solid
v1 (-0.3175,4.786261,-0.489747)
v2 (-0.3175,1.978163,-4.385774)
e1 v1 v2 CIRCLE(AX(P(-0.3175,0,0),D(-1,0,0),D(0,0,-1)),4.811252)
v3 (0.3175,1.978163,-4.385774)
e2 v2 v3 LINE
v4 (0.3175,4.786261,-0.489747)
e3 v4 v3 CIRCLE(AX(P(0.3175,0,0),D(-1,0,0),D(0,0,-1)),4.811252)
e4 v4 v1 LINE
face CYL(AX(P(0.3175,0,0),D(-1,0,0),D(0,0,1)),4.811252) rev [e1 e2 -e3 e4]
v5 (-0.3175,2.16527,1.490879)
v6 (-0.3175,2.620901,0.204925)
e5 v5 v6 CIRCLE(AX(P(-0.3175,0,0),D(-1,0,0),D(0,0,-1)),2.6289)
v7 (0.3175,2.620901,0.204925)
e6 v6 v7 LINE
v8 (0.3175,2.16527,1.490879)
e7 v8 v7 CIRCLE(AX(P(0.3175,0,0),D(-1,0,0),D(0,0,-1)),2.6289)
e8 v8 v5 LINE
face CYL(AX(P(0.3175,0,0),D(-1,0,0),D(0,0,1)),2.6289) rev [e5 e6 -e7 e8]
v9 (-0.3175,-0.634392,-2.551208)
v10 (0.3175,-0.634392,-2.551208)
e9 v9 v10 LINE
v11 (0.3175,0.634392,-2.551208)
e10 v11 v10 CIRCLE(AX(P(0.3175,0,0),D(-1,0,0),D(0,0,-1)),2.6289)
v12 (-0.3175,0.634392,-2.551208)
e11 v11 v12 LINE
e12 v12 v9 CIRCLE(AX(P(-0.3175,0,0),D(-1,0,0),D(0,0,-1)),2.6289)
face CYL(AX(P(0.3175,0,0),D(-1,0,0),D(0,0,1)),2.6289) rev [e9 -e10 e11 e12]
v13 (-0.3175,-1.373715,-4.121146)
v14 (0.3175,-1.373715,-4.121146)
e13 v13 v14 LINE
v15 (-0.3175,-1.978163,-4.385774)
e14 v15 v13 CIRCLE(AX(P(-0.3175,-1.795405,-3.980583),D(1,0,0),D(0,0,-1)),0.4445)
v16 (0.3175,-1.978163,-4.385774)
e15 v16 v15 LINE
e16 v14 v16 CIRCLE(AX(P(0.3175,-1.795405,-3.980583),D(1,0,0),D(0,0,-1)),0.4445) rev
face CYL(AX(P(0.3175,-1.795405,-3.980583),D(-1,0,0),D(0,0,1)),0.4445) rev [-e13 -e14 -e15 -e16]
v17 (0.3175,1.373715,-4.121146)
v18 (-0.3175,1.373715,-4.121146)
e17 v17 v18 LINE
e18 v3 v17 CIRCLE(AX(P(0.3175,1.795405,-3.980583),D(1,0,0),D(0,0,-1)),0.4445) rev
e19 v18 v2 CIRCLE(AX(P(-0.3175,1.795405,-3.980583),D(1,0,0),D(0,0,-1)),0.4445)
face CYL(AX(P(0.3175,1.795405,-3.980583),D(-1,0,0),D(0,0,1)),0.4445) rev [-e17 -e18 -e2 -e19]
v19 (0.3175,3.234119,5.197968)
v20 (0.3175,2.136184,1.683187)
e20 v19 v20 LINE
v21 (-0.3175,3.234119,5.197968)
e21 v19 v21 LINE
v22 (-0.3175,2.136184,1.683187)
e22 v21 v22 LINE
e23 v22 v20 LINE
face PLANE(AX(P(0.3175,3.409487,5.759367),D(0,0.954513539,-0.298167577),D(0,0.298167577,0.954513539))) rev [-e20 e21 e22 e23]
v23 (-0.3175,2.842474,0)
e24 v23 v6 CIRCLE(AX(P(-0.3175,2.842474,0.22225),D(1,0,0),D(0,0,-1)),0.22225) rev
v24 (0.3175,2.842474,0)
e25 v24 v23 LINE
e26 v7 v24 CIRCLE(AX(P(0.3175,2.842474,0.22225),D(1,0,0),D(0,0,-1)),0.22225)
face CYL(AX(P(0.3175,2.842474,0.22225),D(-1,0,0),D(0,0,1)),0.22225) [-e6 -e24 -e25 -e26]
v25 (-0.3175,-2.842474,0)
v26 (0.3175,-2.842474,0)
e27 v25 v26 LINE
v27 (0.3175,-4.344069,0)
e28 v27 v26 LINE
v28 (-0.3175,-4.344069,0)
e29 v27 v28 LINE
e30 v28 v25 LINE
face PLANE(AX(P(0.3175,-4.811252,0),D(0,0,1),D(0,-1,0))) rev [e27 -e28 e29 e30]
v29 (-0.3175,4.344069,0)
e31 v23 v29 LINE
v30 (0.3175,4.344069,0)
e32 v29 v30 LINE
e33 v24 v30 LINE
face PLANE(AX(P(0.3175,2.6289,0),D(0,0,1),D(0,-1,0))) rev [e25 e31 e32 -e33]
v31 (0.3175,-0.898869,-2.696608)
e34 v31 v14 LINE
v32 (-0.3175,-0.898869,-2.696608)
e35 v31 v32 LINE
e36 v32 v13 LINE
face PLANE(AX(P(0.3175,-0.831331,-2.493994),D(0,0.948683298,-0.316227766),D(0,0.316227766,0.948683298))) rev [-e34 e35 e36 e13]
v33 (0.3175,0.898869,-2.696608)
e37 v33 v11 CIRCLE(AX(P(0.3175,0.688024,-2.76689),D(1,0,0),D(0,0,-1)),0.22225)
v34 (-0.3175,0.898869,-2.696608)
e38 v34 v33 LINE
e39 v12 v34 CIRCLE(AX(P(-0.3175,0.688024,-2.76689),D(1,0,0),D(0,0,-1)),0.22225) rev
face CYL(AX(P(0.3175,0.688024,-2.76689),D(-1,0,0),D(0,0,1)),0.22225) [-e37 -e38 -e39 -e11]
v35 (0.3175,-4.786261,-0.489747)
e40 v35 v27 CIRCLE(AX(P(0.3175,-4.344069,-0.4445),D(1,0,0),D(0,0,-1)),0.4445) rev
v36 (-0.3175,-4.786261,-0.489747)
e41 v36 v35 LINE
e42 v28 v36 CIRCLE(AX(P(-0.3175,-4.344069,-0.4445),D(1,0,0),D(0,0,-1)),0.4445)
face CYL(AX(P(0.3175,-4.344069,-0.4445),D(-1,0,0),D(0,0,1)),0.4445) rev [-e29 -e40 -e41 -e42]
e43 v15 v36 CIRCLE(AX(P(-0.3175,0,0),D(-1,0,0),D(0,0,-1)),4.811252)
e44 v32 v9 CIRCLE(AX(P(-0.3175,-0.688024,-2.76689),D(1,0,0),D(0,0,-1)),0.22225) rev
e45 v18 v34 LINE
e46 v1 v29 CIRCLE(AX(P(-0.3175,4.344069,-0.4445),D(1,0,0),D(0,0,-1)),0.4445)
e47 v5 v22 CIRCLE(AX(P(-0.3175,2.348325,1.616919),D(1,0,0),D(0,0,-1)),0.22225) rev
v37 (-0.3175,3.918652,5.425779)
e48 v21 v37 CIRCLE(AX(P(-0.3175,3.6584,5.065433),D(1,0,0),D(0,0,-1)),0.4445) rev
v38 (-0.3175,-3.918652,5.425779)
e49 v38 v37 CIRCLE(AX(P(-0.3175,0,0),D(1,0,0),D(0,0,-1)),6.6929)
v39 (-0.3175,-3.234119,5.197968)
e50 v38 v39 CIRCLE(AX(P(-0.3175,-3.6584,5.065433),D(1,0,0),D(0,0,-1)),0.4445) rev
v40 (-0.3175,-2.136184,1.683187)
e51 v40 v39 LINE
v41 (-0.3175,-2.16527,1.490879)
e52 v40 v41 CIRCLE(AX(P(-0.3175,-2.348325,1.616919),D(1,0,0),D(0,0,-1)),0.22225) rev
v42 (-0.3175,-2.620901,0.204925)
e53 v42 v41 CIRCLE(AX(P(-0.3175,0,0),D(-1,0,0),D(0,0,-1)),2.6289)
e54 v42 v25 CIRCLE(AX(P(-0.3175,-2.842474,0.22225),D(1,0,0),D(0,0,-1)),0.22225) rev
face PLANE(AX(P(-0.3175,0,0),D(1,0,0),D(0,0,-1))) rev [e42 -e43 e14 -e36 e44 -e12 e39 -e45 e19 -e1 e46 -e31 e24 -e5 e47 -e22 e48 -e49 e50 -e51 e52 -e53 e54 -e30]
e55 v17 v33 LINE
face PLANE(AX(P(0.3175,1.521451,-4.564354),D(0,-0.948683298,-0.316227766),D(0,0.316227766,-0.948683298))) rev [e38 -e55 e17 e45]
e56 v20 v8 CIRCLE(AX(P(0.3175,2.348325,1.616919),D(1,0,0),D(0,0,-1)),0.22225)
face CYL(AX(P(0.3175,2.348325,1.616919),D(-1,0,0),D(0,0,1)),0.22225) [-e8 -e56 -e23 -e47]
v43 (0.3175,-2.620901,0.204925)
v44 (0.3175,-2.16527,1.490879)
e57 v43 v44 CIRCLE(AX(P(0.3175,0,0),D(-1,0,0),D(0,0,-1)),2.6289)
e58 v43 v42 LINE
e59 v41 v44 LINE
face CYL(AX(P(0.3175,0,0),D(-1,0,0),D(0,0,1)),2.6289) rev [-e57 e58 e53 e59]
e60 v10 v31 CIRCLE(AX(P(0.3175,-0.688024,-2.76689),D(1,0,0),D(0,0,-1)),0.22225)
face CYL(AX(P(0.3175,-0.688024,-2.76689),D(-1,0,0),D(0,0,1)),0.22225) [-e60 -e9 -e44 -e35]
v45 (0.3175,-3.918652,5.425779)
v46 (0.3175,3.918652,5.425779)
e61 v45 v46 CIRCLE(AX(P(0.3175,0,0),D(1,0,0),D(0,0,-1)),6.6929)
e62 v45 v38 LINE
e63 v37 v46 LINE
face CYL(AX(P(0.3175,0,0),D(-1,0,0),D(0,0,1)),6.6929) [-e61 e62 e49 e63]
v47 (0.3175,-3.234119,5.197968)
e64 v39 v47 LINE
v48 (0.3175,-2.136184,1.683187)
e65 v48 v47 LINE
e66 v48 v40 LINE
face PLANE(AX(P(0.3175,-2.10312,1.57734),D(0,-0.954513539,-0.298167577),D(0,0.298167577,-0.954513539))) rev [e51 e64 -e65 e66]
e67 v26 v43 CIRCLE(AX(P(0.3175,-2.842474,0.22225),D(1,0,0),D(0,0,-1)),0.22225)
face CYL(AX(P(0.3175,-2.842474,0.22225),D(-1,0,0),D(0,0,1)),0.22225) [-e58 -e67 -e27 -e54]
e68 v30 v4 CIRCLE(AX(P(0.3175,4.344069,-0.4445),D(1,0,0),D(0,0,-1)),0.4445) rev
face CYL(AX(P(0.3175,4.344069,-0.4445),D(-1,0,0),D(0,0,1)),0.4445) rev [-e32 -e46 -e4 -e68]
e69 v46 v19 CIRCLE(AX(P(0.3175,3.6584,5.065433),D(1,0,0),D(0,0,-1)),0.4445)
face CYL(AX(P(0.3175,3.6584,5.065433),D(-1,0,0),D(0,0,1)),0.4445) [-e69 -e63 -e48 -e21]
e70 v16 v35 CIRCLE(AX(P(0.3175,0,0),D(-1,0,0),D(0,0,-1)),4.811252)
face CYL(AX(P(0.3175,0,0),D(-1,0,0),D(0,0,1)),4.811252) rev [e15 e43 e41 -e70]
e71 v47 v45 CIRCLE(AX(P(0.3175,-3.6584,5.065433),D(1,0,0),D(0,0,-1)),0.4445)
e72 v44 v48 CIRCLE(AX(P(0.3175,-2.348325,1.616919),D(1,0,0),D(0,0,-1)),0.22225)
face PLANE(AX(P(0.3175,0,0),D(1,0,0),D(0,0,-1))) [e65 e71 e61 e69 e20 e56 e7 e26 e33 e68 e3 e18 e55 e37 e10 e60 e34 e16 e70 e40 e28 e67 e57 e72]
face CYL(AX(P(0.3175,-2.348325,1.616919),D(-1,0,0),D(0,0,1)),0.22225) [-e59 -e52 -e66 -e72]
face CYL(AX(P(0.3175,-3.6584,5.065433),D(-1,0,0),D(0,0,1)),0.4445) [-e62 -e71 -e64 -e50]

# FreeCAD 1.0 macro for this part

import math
import FreeCAD as App
import Part
import Sketcher
Q = App.Units.Quantity


def edges_at(feature, points):
    """Names of the edges that pass closest to the given points."""
    edges = feature.Shape.Edges
    near = lambda p: min(range(len(edges)), key=lambda i: edges[i].distToShape(Part.Vertex(*p))[0])
    return sorted({f"Edge{near(p) + 1}" for p in points})

doc = App.newDocument("Part")
body = doc.addObject("PartDesign::Body", "Body")

# Sketch on YZ plane
sketch1 = body.newObject("Sketcher::SketchObject", "Sketch")
sketch1.AttachmentSupport = (doc.getObject("YZ_Plane"), [""])
sketch1.MapMode = "FlatFace"
sketch1.addGeometry([
    Part.LineSegment(App.Vector(-0.831331, -2.493994, 0), App.Vector(-1.521451, -4.564354, 0)),  # 0
    Part.ArcOfCircle(Part.Circle(App.Vector(0, 0, 0), App.Vector(0, 0, 1), 4.811252), math.radians(180), math.radians(251.565051)),  # 1
    Part.LineSegment(App.Vector(-4.811252, 0, 0), App.Vector(-2.6289, 0, 0)),  # 2
    Part.ArcOfCircle(Part.Circle(App.Vector(0, 0, 0), App.Vector(0, 0, 1), 2.6289), math.radians(143.130102), math.radians(180)),  # 3
    Part.LineSegment(App.Vector(-2.10312, 1.57734, 0), App.Vector(-3.409487, 5.759367, 0)),  # 4
    Part.ArcOfCircle(Part.Circle(App.Vector(0, 0, 0), App.Vector(0, 0, 1), 6.6929), math.radians(120.625102), math.radians(419.374898)),  # 5
    Part.LineSegment(App.Vector(3.409487, 5.759367, 0), App.Vector(2.10312, 1.57734, 0)),  # 6
    Part.ArcOfCircle(Part.Circle(App.Vector(0, 0, 0), App.Vector(0, 0, 1), 2.6289), math.radians(0), math.radians(36.869898)),  # 7
    Part.LineSegment(App.Vector(2.6289, 0, 0), App.Vector(4.811252, 0, 0)),  # 8
    Part.ArcOfCircle(Part.Circle(App.Vector(0, 0, 0), App.Vector(0, 0, 1), 4.811252), math.radians(-71.565051), math.radians(0)),  # 9
    Part.LineSegment(App.Vector(1.521451, -4.564354, 0), App.Vector(0.831331, -2.493994, 0)),  # 10
    Part.ArcOfCircle(Part.Circle(App.Vector(0, 0, 0), App.Vector(0, 0, 1), 2.6289), math.radians(-108.434949), math.radians(-71.565051)),  # 11
], False)
sketch1.addConstraint([
    Sketcher.Constraint("Coincident", 0, 2, 1, 2),
    Sketcher.Constraint("Coincident", 1, 1, 2, 1),
    Sketcher.Constraint("Coincident", 2, 2, 3, 2),
    Sketcher.Constraint("Coincident", 3, 1, 4, 1),
    Sketcher.Constraint("Coincident", 4, 2, 5, 1),
    Sketcher.Constraint("Coincident", 5, 2, 6, 1),
    Sketcher.Constraint("Coincident", 6, 2, 7, 2),
    Sketcher.Constraint("Coincident", 7, 1, 8, 1),
    Sketcher.Constraint("Coincident", 8, 2, 9, 2),
    Sketcher.Constraint("Coincident", 9, 1, 10, 1),
    Sketcher.Constraint("Coincident", 10, 2, 11, 2),
    Sketcher.Constraint("Coincident", 11, 1, 0, 1),
    Sketcher.Constraint("Horizontal", 2),
    Sketcher.Constraint("Horizontal", 8),
    Sketcher.Constraint("Coincident", 1, 3, -1, 1),
    Sketcher.Constraint("Coincident", 3, 3, -1, 1),
    Sketcher.Constraint("Coincident", 5, 3, -1, 1),
    Sketcher.Constraint("Coincident", 7, 3, -1, 1),
    Sketcher.Constraint("Coincident", 9, 3, -1, 1),
    Sketcher.Constraint("Coincident", 11, 3, -1, 1),
    Sketcher.Constraint("Equal", 3, 7),
    Sketcher.Constraint("Equal", 1, 9),
    Sketcher.Constraint("Equal", 7, 11),
    Sketcher.Constraint("PointOnObject", 1, 1, -1),
    Sketcher.Constraint("PointOnObject", 7, 1, -1),
    Sketcher.Constraint("Horizontal", 4, 2, 5, 2),
    Sketcher.Constraint("Horizontal", 3, 1, 6, 2),
    Sketcher.Constraint("Horizontal", 0, 2, 9, 1),
    Sketcher.Constraint("Horizontal", 10, 2, 11, 1),
    Sketcher.Constraint("Radius", 3, Q("0.1035 in")),
    Sketcher.Constraint("Radius", 5, Q("0.2635 in")),
    Sketcher.Constraint("Radius", 1, Q("4.811252 mm")),
    Sketcher.Constraint("DistanceX", 3, 1, -1, 1, Q("0.0828 in")),
    Sketcher.Constraint("DistanceX", 0, 2, -1, 1, Q("1.521451 mm")),
    Sketcher.Constraint("DistanceX", -1, 1, 10, 2, Q("0.831331 mm")),
    Sketcher.Constraint("Distance", 4, Q("4.381318 mm")),
])
pad1 = body.newObject("PartDesign::Pad", "Pad")
pad1.Profile = sketch1
pad1.Type = "TwoLengths"
pad1.Length = Q("0.0125 in")
pad1.Length2 = Q("0.0125 in")
doc.recompute()

fillet = body.newObject("PartDesign::Fillet", "Fillet")
fillet.Base = (pad1, edges_at(pad1, [
    (0, 1.521, -4.564),
    (0, 4.811, 0),
    (0, 3.409, 5.759),
    (0, -3.409, 5.759),
    (0, -4.811, 0),
    (0, -1.521, -4.564),
]))
fillet.Radius = Q("0.0175 in")
doc.recompute()

fillet2 = body.newObject("PartDesign::Fillet", "Fillet001")
fillet2.Base = (fillet, edges_at(fillet, [
    (0, 0.831, -2.494),
    (0, 2.629, 0),
    (0, 2.103, 1.577),
    (0, -2.103, 1.577),
    (0, -2.629, 0),
    (0, -0.831, -2.494),
]))
fillet2.Radius = 0.22225

doc.recompute()
